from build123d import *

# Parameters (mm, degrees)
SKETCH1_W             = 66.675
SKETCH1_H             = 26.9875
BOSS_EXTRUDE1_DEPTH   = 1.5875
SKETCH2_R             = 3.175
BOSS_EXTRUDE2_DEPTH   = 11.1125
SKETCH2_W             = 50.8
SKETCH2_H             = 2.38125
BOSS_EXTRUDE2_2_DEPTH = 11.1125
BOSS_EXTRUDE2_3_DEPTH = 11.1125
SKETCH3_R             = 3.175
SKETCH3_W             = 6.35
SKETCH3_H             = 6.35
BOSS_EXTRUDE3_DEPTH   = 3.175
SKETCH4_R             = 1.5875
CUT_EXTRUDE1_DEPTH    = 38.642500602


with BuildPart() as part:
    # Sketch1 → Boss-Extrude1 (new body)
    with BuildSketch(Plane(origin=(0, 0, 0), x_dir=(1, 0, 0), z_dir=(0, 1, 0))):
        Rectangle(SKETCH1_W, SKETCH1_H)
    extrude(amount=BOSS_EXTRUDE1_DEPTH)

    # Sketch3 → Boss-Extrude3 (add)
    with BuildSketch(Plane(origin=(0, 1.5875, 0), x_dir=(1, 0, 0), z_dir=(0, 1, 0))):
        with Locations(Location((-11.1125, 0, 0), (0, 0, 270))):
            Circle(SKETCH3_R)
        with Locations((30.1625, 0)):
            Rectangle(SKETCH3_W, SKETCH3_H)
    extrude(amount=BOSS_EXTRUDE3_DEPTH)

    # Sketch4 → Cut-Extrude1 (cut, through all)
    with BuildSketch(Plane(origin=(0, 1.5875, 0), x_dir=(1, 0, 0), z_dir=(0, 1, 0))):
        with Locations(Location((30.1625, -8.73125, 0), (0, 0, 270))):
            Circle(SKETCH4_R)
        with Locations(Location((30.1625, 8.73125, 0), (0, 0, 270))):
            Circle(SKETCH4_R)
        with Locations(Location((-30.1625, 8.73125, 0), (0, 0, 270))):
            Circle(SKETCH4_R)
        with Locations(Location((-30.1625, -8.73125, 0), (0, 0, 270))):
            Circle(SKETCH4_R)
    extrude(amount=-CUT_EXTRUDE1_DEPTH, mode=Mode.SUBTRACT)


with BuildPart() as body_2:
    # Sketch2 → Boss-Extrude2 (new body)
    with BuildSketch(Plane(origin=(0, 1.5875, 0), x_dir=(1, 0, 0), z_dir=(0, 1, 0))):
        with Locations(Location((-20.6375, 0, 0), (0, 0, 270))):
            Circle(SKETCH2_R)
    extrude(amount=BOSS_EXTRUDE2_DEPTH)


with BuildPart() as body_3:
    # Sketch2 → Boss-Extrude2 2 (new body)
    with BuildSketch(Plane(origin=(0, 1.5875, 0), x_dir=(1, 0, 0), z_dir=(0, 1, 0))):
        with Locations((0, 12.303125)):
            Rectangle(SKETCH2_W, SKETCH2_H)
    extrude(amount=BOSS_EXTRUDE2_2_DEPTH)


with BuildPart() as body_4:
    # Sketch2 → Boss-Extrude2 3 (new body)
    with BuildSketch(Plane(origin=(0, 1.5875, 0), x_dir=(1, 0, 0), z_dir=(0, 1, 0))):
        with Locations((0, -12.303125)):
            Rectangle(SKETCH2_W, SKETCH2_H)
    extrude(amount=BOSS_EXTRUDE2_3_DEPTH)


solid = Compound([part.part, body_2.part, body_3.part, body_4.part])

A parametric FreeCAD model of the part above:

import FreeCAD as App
import Part
import Sketcher

V = App.Vector
Q = App.Units.Quantity

doc = App.newDocument("Part")
params = doc.addObject("Spreadsheet::Sheet", "Params")
for row, (alias, value) in enumerate([
    ("sketch1_width", "2.625 in"),
    ("sketch1_height", "1.0625 in"),
    ("pad1_length", "0.0625 in"),
    ("sketch2_diameter", "0.25 in"),
    ("sketch2_width", "0.25 in"),
    ("pad2_length", "0.125 in"),
    ("sketch3_diameter", "0.125 in"),
    ("sketch4_diameter", "0.25 in"),
    ("pad3_length", "0.4375 in"),
    ("sketch5_width", "2 in"),
    ("sketch5_height", "0.09375 in"),
    ("pad4_length", "0.4375 in"),
    ("sketch6_width", "2 in"),
    ("sketch6_height", "0.09375 in"),
    ("pad5_length", "0.4375 in"),
], start=1):
    params.set(f"A{row}", alias)
    params.set(f"B{row}", "=" + value)
    params.setAlias(f"B{row}", alias)

body = doc.addObject("PartDesign::Body", "Body")

# Sketch on XZ plane
sketch1 = body.newObject("Sketcher::SketchObject", "Sketch")
sketch1.AttachmentSupport = (doc.getObject("XZ_Plane"), [""])
sketch1.MapMode = "FlatFace"
sketch1.addGeometry(Part.LineSegment(V(-33, -13, 0), V(-33, 13, 0)), False)
sketch1.addGeometry(Part.LineSegment(V(-33, 13, 0), V(33, 13, 0)), False)
sketch1.addGeometry(Part.LineSegment(V(33, 13, 0), V(33, -13, 0)), False)
sketch1.addGeometry(Part.LineSegment(V(33, -13, 0), V(-33, -13, 0)), False)
sketch1.addConstraint(Sketcher.Constraint("Coincident", 0, 2, 1, 1))
sketch1.addConstraint(Sketcher.Constraint("Coincident", 1, 2, 2, 1))
sketch1.addConstraint(Sketcher.Constraint("Coincident", 2, 2, 3, 1))
sketch1.addConstraint(Sketcher.Constraint("Coincident", 3, 2, 0, 1))
sketch1.addConstraint(Sketcher.Constraint("Vertical", 0))
sketch1.addConstraint(Sketcher.Constraint("Horizontal", 1))
sketch1.addConstraint(Sketcher.Constraint("Vertical", 2))
sketch1.addConstraint(Sketcher.Constraint("Horizontal", 3))
sketch1.addConstraint(Sketcher.Constraint("Symmetric", 0, 2, 2, 2, -1, 1))
sketch1.addConstraint(Sketcher.Constraint("DistanceX", 1, 1, 1, 2, Q("2.625 in")))
sketch1.addConstraint(Sketcher.Constraint("DistanceY", 0, 1, 0, 2, Q("1.0625 in")))
sketch1.setExpression("Constraints[9]", "Params.sketch1_width")
sketch1.setExpression("Constraints[10]", "Params.sketch1_height")
pad1 = body.newObject("PartDesign::Pad", "Pad")
pad1.Profile = sketch1
pad1.setExpression("Length", "Params.pad1_length")
pad1.Reversed = True

# Sketch on XZ plane
sketch2 = body.newObject("Sketcher::SketchObject", "Sketch001")
sketch2.AttachmentSupport = (doc.getObject("XZ_Plane"), [""])
sketch2.MapMode = "FlatFace"
sketch2.AttachmentOffset = App.Placement(V(0, 0, -0.0625 * 25.4), App.Rotation())
sketch2.addGeometry(Part.Circle(V(-11.1, 0, 0), V(0, 0, 1), 3.2), False)
sketch2.addGeometry(Part.LineSegment(V(27, -3.2, 0), V(27, 3.2, 0)), False)
sketch2.addGeometry(Part.LineSegment(V(27, 3.2, 0), V(33.3, 3.2, 0)), False)
sketch2.addGeometry(Part.LineSegment(V(33.3, 3.2, 0), V(33.3, -3.2, 0)), False)
sketch2.addGeometry(Part.LineSegment(V(33.3, -3.2, 0), V(27, -3.2, 0)), False)
sketch2.addConstraint(Sketcher.Constraint("Coincident", 1, 2, 2, 1))
sketch2.addConstraint(Sketcher.Constraint("Coincident", 2, 2, 3, 1))
sketch2.addConstraint(Sketcher.Constraint("Coincident", 3, 2, 4, 1))
sketch2.addConstraint(Sketcher.Constraint("Coincident", 4, 2, 1, 1))
sketch2.addConstraint(Sketcher.Constraint("Vertical", 1))
sketch2.addConstraint(Sketcher.Constraint("Horizontal", 2))
sketch2.addConstraint(Sketcher.Constraint("Vertical", 3))
sketch2.addConstraint(Sketcher.Constraint("Horizontal", 4))
sketch2.addConstraint(Sketcher.Constraint("PointOnObject", 0, 3, -1))
sketch2.addConstraint(Sketcher.Constraint("Equal", 4, 1))
sketch2.addConstraint(Sketcher.Constraint("Diameter", 0, Q("0.25 in")))
sketch2.addConstraint(Sketcher.Constraint("DistanceX", 2, 1, 2, 2, Q("0.25 in")))
sketch2.addConstraint(Sketcher.Constraint("DistanceX", 0, 3, 1, 2, Q("1.5 in")))
sketch2.addConstraint(Sketcher.Constraint("DistanceX", 0, 3, -1, 1, Q("0.4375 in")))
sketch2.addConstraint(Sketcher.Constraint("DistanceY", -1, 1, 1, 2, Q("0.125 in")))
sketch2.setExpression("Constraints[10]", "Params.sketch2_diameter")
sketch2.setExpression("Constraints[11]", "Params.sketch2_width")
pad2 = body.newObject("PartDesign::Pad", "Pad001")
pad2.Profile = sketch2
pad2.setExpression("Length", "Params.pad2_length")
pad2.Reversed = True

# Sketch on XZ plane
sketch3 = body.newObject("Sketcher::SketchObject", "Sketch002")
sketch3.AttachmentSupport = (doc.getObject("XZ_Plane"), [""])
sketch3.MapMode = "FlatFace"
sketch3.AttachmentOffset = App.Placement(V(0, 0, -0.0625 * 25.4), App.Rotation())
sketch3.addGeometry(Part.Circle(V(30.2, 8.7, 0), V(0, 0, 1), 1.6), False)
sketch3.addGeometry(Part.Circle(V(30.2, -8.7, 0), V(0, 0, 1), 1.6), False)
sketch3.addGeometry(Part.Circle(V(-30.2, -8.7, 0), V(0, 0, 1), 1.6), False)
sketch3.addGeometry(Part.Circle(V(-30.2, 8.7, 0), V(0, 0, 1), 1.6), False)
sketch3.addConstraint(Sketcher.Constraint("Equal", 0, 1))
sketch3.addConstraint(Sketcher.Constraint("Equal", 1, 2))
sketch3.addConstraint(Sketcher.Constraint("Equal", 2, 3))
sketch3.addConstraint(Sketcher.Constraint("Symmetric", 0, 3, 2, 3, -1, 1))
sketch3.addConstraint(Sketcher.Constraint("Symmetric", 1, 3, 3, 3, -1, 1))
sketch3.addConstraint(Sketcher.Constraint("Symmetric", 1, 3, 2, 3, -2))
sketch3.addConstraint(Sketcher.Constraint("Diameter", 0, Q("0.125 in")))
sketch3.addConstraint(Sketcher.Constraint("DistanceX", -1, 1, 0, 3, Q("1.1875 in")))
sketch3.addConstraint(Sketcher.Constraint("DistanceY", -1, 1, 0, 3, Q("0.34375 in")))
sketch3.setExpression("Constraints[6]", "Params.sketch3_diameter")
pocket1 = body.newObject("PartDesign::Pocket", "Pocket")
pocket1.Profile = sketch3
pocket1.Type = "ThroughAll"
pocket1.Reversed = True
body2 = doc.addObject("PartDesign::Body", "Body001")

# Sketch on XZ plane
sketch4 = body2.newObject("Sketcher::SketchObject", "Sketch003")
sketch4.AttachmentSupport = (doc.getObject("XZ_Plane001"), [""])
sketch4.MapMode = "FlatFace"
sketch4.AttachmentOffset = App.Placement(V(0, 0, -0.0625 * 25.4), App.Rotation())
sketch4.addGeometry(Part.Circle(V(-20.6, 0, 0), V(0, 0, 1), 3.2), False)
sketch4.addConstraint(Sketcher.Constraint("PointOnObject", 0, 3, -1))
sketch4.addConstraint(Sketcher.Constraint("Diameter", 0, Q("0.25 in")))
sketch4.addConstraint(Sketcher.Constraint("DistanceX", 0, 3, -1, 1, Q("0.8125 in")))
sketch4.setExpression("Constraints[1]", "Params.sketch4_diameter")
pad3 = body2.newObject("PartDesign::Pad", "Pad002")
pad3.Profile = sketch4
pad3.setExpression("Length", "Params.pad3_length")
pad3.Reversed = True
body3 = doc.addObject("PartDesign::Body", "Body002")

# Sketch on XZ plane
sketch5 = body3.newObject("Sketcher::SketchObject", "Sketch004")
sketch5.AttachmentSupport = (doc.getObject("XZ_Plane002"), [""])
sketch5.MapMode = "FlatFace"
sketch5.AttachmentOffset = App.Placement(V(0, 0, -0.0625 * 25.4), App.Rotation())
sketch5.addGeometry(Part.LineSegment(V(-25.4, -13.5, 0), V(-25.4, -11.1, 0)), False)
sketch5.addGeometry(Part.LineSegment(V(-25.4, -11.1, 0), V(25.4, -11.1, 0)), False)
sketch5.addGeometry(Part.LineSegment(V(25.4, -11.1, 0), V(25.4, -13.5, 0)), False)
sketch5.addGeometry(Part.LineSegment(V(25.4, -13.5, 0), V(-25.4, -13.5, 0)), False)
sketch5.addConstraint(Sketcher.Constraint("Coincident", 0, 2, 1, 1))
sketch5.addConstraint(Sketcher.Constraint("Coincident", 1, 2, 2, 1))
sketch5.addConstraint(Sketcher.Constraint("Coincident", 2, 2, 3, 1))
sketch5.addConstraint(Sketcher.Constraint("Coincident", 3, 2, 0, 1))
sketch5.addConstraint(Sketcher.Constraint("Vertical", 0))
sketch5.addConstraint(Sketcher.Constraint("Horizontal", 1))
sketch5.addConstraint(Sketcher.Constraint("Vertical", 2))
sketch5.addConstraint(Sketcher.Constraint("Horizontal", 3))
sketch5.addConstraint(Sketcher.Constraint("DistanceX", 1, 1, 1, 2, Q("2 in")))
sketch5.addConstraint(Sketcher.Constraint("DistanceX", 0, 2, -1, 1, Q("1 in")))
sketch5.addConstraint(Sketcher.Constraint("DistanceY", 0, 1, 0, 2, Q("0.09375 in")))
sketch5.addConstraint(Sketcher.Constraint("DistanceY", 0, 2, -1, 1, Q("0.4375 in")))
sketch5.setExpression("Constraints[8]", "Params.sketch5_width")
sketch5.setExpression("Constraints[10]", "Params.sketch5_height")
pad4 = body3.newObject("PartDesign::Pad", "Pad003")
pad4.Profile = sketch5
pad4.setExpression("Length", "Params.pad4_length")
pad4.Reversed = True
body4 = doc.addObject("PartDesign::Body", "Body003")

# Sketch on XZ plane
sketch6 = body4.newObject("Sketcher::SketchObject", "Sketch005")
sketch6.AttachmentSupport = (doc.getObject("XZ_Plane003"), [""])
sketch6.MapMode = "FlatFace"
sketch6.AttachmentOffset = App.Placement(V(0, 0, -0.0625 * 25.4), App.Rotation())
sketch6.addGeometry(Part.LineSegment(V(-25.4, 11.1, 0), V(-25.4, 13.5, 0)), False)
sketch6.addGeometry(Part.LineSegment(V(-25.4, 13.5, 0), V(25.4, 13.5, 0)), False)
sketch6.addGeometry(Part.LineSegment(V(25.4, 13.5, 0), V(25.4, 11.1, 0)), False)
sketch6.addGeometry(Part.LineSegment(V(25.4, 11.1, 0), V(-25.4, 11.1, 0)), False)
sketch6.addConstraint(Sketcher.Constraint("Coincident", 0, 2, 1, 1))
sketch6.addConstraint(Sketcher.Constraint("Coincident", 1, 2, 2, 1))
sketch6.addConstraint(Sketcher.Constraint("Coincident", 2, 2, 3, 1))
sketch6.addConstraint(Sketcher.Constraint("Coincident", 3, 2, 0, 1))
sketch6.addConstraint(Sketcher.Constraint("Vertical", 0))
sketch6.addConstraint(Sketcher.Constraint("Horizontal", 1))
sketch6.addConstraint(Sketcher.Constraint("Vertical", 2))
sketch6.addConstraint(Sketcher.Constraint("Horizontal", 3))
sketch6.addConstraint(Sketcher.Constraint("DistanceX", 1, 1, 1, 2, Q("2 in")))
sketch6.addConstraint(Sketcher.Constraint("DistanceX", 0, 2, -1, 1, Q("1 in")))
sketch6.addConstraint(Sketcher.Constraint("DistanceY", 0, 1, 0, 2, Q("0.09375 in")))
sketch6.addConstraint(Sketcher.Constraint("DistanceY", -1, 1, 0, 2, Q("0.53125 in")))
sketch6.setExpression("Constraints[8]", "Params.sketch6_width")
sketch6.setExpression("Constraints[10]", "Params.sketch6_height")
pad5 = body4.newObject("PartDesign::Pad", "Pad004")
pad5.Profile = sketch6
pad5.setExpression("Length", "Params.pad5_length")
pad5.Reversed = True

doc.recompute()
